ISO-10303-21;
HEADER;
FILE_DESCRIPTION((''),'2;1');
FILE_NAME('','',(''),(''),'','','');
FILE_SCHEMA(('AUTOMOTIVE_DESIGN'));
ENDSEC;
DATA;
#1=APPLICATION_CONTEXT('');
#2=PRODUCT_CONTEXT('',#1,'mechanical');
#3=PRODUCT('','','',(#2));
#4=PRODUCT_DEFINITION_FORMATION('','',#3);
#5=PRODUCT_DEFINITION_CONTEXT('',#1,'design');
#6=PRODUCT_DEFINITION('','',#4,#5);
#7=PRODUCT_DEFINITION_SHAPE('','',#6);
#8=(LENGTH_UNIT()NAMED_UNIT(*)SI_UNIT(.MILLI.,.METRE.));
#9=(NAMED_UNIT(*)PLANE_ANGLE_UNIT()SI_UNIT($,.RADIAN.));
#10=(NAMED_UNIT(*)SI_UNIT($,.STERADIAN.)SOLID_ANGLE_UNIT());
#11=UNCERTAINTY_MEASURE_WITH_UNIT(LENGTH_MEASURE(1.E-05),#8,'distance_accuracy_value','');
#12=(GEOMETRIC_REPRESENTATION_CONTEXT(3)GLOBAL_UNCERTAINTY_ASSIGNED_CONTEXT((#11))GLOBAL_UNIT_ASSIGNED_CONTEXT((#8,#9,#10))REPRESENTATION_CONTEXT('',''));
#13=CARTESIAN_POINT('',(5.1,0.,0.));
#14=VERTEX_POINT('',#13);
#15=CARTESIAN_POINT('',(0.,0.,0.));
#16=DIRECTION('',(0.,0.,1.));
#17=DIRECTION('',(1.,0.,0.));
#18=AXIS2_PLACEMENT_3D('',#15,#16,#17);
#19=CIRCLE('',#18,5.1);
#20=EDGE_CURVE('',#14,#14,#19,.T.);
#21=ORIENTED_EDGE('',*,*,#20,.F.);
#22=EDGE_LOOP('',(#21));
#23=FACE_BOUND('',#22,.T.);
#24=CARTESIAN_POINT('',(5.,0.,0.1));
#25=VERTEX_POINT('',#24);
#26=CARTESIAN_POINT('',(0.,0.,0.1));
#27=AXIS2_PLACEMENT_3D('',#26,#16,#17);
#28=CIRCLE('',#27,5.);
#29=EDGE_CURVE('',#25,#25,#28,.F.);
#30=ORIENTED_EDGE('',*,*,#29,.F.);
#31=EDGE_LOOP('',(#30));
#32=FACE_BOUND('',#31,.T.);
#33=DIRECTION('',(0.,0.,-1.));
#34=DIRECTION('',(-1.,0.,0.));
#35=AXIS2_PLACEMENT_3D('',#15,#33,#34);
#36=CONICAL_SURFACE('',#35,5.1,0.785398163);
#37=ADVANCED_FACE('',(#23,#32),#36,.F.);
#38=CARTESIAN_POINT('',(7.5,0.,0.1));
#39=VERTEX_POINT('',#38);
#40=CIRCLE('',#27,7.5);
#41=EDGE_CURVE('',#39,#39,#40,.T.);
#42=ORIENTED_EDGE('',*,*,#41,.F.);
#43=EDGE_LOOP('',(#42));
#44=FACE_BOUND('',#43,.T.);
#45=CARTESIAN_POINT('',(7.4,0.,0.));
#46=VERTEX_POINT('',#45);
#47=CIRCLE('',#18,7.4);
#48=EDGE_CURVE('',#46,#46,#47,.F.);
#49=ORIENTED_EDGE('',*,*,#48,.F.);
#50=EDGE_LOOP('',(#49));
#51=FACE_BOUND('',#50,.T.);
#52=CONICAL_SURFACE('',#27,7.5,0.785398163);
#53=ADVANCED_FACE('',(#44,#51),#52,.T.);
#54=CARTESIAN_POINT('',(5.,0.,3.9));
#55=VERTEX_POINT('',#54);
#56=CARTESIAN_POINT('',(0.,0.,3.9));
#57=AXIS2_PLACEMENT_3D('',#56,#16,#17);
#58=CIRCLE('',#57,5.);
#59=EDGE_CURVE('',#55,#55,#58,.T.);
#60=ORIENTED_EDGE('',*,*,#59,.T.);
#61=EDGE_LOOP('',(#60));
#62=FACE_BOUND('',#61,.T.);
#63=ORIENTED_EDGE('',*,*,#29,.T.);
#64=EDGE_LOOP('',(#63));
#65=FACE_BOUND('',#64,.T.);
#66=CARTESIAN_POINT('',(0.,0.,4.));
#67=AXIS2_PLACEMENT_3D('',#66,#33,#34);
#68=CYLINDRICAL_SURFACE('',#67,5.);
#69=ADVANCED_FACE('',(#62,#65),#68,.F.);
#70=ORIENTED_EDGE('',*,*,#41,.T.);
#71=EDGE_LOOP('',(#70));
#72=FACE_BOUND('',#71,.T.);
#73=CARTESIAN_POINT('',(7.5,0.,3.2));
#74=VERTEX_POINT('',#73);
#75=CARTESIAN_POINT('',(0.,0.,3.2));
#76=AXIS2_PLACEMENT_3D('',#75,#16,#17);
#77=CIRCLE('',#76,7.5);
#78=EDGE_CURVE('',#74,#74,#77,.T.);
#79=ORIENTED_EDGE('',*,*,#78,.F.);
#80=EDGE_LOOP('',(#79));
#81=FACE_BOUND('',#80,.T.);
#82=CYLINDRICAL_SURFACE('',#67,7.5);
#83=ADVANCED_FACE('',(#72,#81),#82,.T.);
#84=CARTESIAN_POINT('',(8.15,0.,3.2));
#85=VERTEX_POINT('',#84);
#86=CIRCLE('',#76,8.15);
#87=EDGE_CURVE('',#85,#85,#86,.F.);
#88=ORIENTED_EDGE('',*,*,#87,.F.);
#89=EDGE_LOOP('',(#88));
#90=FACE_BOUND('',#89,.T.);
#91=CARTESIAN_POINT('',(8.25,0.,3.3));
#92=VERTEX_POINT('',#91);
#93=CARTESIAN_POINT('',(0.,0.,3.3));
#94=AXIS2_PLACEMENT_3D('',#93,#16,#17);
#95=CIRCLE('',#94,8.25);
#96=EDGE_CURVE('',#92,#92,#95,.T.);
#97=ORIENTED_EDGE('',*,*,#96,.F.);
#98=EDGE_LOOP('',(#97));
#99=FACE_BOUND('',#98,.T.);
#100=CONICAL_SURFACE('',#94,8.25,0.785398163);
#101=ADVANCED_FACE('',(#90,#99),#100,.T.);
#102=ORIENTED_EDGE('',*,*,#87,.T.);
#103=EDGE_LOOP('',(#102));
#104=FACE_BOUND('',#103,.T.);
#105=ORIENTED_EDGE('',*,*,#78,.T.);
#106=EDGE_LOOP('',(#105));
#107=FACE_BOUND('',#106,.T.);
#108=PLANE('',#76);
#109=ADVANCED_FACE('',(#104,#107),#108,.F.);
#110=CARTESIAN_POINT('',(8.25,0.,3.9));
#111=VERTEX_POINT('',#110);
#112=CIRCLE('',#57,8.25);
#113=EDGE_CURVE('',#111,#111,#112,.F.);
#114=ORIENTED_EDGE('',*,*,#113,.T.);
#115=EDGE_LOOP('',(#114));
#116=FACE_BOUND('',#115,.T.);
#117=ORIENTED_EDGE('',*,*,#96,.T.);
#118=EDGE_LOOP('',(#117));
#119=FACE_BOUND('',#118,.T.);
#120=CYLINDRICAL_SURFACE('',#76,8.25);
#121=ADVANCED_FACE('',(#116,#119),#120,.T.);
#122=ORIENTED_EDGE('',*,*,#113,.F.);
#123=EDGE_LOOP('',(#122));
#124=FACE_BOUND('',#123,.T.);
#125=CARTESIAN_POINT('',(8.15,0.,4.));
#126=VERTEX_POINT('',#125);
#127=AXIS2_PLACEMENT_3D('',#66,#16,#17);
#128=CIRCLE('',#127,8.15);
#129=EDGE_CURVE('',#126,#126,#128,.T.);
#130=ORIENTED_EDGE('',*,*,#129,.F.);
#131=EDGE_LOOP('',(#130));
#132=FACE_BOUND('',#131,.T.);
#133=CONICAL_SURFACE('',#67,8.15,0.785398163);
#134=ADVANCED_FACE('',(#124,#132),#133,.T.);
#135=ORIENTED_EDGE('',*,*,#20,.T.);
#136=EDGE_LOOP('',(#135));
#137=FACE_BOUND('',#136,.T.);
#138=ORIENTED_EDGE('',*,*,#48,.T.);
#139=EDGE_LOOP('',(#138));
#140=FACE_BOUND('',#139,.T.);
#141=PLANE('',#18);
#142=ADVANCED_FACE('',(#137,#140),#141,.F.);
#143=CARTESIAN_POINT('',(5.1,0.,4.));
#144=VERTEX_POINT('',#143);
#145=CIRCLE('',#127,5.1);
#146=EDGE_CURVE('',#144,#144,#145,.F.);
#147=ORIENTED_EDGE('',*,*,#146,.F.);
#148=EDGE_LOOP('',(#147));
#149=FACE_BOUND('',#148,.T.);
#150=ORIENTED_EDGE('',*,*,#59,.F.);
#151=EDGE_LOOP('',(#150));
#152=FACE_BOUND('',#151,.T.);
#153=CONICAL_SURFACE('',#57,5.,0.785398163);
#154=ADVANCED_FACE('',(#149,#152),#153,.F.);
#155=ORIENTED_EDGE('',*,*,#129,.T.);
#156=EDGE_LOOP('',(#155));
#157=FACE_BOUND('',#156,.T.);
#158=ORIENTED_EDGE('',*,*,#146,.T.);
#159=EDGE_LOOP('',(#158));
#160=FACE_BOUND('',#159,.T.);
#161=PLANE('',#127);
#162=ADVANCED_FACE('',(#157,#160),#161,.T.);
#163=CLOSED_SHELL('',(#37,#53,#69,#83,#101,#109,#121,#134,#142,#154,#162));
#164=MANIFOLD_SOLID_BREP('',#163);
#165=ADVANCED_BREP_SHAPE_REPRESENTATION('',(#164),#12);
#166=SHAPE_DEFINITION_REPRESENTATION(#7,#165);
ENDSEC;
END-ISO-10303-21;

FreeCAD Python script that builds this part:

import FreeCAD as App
import Part
import Sketcher

V = App.Vector
Q = App.Units.Quantity


def edges_at(feature, points):
    """Names of the edges that pass closest to the given points."""
    edges = feature.Shape.Edges
    near = lambda p: min(range(len(edges)), key=lambda i: edges[i].distToShape(Part.Vertex(*p))[0])
    return sorted({f"Edge{near(p) + 1}" for p in points})

doc = App.newDocument("Part")
body = doc.addObject("PartDesign::Body", "Body")

# Sketch on XY plane
sketch1 = body.newObject("Sketcher::SketchObject", "Sketch")
sketch1.AttachmentSupport = (doc.getObject("XY_Plane"), [""])
sketch1.MapMode = "FlatFace"
sketch1.addGeometry(Part.Circle(V(0, 0, 0), V(0, 0, 1), 7.5), False)
sketch1.addGeometry(Part.Circle(V(0, 0, 0), V(0, 0, 1), 5), False)
sketch1.addConstraint(Sketcher.Constraint("Coincident", 0, 3, -1, 1))
sketch1.addConstraint(Sketcher.Constraint("Coincident", 1, 3, -1, 1))
sketch1.addConstraint(Sketcher.Constraint("Diameter", 0, Q("15 mm")))
sketch1.addConstraint(Sketcher.Constraint("Diameter", 1, Q("10 mm")))
pad1 = body.newObject("PartDesign::Pad", "Pad")
pad1.Profile = sketch1
pad1.Length = 4

# Sketch on XY plane
sketch2 = body.newObject("Sketcher::SketchObject", "Sketch001")
sketch2.AttachmentSupport = (doc.getObject("XY_Plane"), [""])
sketch2.MapMode = "FlatFace"
sketch2.AttachmentOffset = App.Placement(V(0, 0, 3.2), App.Rotation())
sketch2.addGeometry(Part.Circle(V(0, 0, 0), V(0, 0, 1), 8.25), False)
sketch2.addGeometry(Part.Circle(V(0, 0, 0), V(0, 0, 1), 7.5), False)
sketch2.addConstraint(Sketcher.Constraint("Coincident", 0, 3, -1, 1))
sketch2.addConstraint(Sketcher.Constraint("Coincident", 1, 3, -1, 1))
sketch2.addConstraint(Sketcher.Constraint("Diameter", 1, Q("15 mm")))
sketch2.addConstraint(Sketcher.Constraint("Diameter", 0, Q("16.5 mm")))
pad2 = body.newObject("PartDesign::Pad", "Pad001")
pad2.Profile = sketch2
pad2.Length = 0.8
doc.recompute()

chamfer = body.newObject("PartDesign::Chamfer", "Chamfer")
chamfer.Base = (pad2, edges_at(pad2, [
    (-8.25, 0, 3.2),
    (-8.25, 0, 4),
    (-7.5, 0, 0),
    (-5, 0, 0),
    (-5, 0, 4),
]))
chamfer.Size = 0.1

doc.recompute()
